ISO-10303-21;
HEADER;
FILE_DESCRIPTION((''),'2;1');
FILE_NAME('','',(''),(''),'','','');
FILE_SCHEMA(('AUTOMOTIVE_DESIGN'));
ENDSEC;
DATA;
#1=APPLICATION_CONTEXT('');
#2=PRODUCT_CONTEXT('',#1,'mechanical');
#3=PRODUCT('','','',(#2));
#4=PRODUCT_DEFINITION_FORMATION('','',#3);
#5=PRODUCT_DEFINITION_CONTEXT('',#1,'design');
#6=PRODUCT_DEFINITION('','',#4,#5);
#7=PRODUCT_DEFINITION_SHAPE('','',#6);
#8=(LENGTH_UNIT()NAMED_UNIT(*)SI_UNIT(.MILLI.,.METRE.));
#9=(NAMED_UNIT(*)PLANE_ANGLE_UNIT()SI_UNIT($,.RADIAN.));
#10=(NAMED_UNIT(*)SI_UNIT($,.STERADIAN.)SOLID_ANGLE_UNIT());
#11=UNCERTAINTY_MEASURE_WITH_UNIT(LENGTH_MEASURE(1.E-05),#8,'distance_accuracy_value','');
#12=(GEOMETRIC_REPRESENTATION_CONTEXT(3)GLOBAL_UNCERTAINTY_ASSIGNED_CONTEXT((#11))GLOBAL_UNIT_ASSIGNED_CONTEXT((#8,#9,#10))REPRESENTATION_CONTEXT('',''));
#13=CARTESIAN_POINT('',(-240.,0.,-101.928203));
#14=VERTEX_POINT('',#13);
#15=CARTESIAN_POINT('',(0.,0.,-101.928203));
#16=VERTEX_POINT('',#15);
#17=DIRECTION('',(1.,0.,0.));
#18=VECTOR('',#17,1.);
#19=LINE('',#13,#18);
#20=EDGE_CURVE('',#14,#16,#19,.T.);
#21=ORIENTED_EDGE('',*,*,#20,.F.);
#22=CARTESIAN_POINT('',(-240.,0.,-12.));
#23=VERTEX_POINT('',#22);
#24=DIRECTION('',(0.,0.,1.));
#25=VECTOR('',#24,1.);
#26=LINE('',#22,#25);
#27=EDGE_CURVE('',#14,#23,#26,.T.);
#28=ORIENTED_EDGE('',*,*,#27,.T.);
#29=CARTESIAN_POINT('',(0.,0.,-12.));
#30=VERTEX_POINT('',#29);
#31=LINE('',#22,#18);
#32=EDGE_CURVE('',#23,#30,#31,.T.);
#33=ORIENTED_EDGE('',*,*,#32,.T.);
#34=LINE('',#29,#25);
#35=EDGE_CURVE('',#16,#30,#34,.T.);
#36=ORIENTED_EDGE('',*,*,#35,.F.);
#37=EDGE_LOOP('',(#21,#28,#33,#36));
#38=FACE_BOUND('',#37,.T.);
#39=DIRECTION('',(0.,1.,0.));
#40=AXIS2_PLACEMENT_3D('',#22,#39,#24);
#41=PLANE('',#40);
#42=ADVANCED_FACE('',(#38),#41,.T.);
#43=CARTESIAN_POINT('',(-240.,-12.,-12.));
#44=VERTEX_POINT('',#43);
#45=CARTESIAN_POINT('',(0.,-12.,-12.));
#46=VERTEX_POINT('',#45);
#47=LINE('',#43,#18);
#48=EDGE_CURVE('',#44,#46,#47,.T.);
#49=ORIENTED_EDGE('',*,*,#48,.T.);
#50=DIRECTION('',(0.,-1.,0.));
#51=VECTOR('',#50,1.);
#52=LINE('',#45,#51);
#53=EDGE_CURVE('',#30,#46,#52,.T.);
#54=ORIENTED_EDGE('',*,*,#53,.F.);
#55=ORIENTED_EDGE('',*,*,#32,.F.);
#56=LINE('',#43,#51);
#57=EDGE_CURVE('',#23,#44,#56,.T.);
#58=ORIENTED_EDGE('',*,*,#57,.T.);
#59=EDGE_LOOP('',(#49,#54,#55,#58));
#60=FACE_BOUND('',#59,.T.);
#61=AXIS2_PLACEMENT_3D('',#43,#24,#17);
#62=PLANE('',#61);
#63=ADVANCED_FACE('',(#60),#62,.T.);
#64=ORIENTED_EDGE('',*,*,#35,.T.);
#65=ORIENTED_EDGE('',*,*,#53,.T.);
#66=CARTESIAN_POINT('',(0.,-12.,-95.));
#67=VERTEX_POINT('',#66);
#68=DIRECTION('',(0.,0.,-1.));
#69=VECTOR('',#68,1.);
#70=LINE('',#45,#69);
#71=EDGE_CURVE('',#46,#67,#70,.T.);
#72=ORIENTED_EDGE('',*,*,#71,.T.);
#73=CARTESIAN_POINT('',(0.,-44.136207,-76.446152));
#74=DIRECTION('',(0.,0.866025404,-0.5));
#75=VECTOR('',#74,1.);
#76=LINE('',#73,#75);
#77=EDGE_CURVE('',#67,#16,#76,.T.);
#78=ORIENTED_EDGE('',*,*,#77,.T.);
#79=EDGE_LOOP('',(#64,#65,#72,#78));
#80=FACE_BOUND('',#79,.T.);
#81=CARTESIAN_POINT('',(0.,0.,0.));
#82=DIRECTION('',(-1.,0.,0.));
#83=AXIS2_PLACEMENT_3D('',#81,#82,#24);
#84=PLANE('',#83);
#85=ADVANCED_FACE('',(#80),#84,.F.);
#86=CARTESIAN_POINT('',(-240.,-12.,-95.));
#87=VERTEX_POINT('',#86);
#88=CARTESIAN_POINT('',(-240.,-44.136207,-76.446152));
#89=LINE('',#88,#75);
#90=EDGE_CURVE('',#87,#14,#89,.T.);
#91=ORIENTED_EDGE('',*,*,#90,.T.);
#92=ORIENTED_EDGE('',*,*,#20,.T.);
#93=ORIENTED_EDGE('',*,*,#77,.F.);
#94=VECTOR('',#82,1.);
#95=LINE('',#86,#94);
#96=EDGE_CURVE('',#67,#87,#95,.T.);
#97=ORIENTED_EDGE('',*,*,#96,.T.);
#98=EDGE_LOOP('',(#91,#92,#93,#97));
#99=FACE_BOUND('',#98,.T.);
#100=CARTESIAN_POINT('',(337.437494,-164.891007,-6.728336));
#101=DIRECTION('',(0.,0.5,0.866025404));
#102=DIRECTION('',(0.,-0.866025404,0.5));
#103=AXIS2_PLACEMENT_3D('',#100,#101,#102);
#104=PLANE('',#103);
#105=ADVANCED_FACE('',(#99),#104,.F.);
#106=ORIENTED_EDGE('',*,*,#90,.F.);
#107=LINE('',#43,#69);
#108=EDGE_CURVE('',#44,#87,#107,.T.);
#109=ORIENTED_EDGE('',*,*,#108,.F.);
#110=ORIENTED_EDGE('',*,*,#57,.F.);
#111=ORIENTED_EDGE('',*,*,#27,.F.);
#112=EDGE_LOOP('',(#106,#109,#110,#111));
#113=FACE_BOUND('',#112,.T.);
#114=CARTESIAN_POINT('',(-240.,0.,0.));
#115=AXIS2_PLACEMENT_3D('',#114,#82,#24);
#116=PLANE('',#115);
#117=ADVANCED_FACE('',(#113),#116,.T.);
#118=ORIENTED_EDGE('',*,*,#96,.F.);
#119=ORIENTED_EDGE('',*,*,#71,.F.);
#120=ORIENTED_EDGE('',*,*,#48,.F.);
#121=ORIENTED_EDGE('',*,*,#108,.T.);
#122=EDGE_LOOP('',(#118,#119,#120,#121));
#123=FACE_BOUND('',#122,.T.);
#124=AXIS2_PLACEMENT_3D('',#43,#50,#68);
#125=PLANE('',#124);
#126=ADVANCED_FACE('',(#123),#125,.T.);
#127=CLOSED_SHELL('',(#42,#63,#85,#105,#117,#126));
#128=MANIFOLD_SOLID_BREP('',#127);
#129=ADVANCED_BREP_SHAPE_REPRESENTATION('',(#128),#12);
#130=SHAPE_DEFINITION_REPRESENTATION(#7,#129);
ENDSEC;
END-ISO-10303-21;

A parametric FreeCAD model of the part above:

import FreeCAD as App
import Part
import Sketcher
from FreeCAD import Vector
Q = App.Units.Quantity


def add_polygon(sketch, points):
    """Adds a closed chain of lines whose ends are joined by coincident constraints."""
    first, n = sketch.GeometryCount, len(points)
    for a, b in zip(points, points[1:] + points[:1]):
        sketch.addGeometry(Part.LineSegment(App.Vector(*a, 0), App.Vector(*b, 0)), False)
    for i in range(n):
        sketch.addConstraint(Sketcher.Constraint("Coincident", first + i, 2, first + (i + 1) % n, 1))

doc = App.newDocument("Part")
body = doc.addObject("PartDesign::Body", "Body")

sketch1 = body.newObject("Sketcher::SketchObject", "Sketch")
sketch1.AttachmentSupport = (doc.getObject("YZ_Plane"), [""])
sketch1.MapMode = "FlatFace"
add_polygon(sketch1, [(0, -12), (-12, -12), (-12, -135), (0, -135)])
sketch1.addConstraint([
    Sketcher.Constraint("Horizontal", 0),
    Sketcher.Constraint("Vertical", 1),
    Sketcher.Constraint("Horizontal", 2),
    Sketcher.Constraint("Vertical", 3),
    Sketcher.Constraint("PointOnObject", 2, 2, -2),
    Sketcher.Constraint("DistanceX", 0, 2, 0, 1, Q("12 mm")),
    Sketcher.Constraint("DistanceY", 1, 2, 1, 1, Q("123 mm")),
    Sketcher.Constraint("DistanceY", 0, 2, -1, 1, Q("12 mm")),
])
pad1 = body.newObject("PartDesign::Pad", "Pad")
pad1.Profile = sketch1
pad1.Length = 240
pad1.Reversed = True

sketch2 = body.newObject("Sketcher::SketchObject", "Sketch001")
sketch2.AttachmentSupport = (doc.getObject("YZ_Plane"), [""])
sketch2.MapMode = "FlatFace"
add_polygon(sketch2, [(-164.891007, -6.728336), (-535.390993, 207.179931), (-963.207526, -533.820041), (-48.506552, -1061.922895), (379.309982, -320.922923)])
sketch2.addConstraint([
    Sketcher.Constraint("Perpendicular", 0, 1),
    Sketcher.Constraint("Perpendicular", 1, 2),
    Sketcher.Constraint("Perpendicular", 2, 3),
    Sketcher.Constraint("Perpendicular", 3, 4),
    Sketcher.Constraint("Angle", 0, Q("150 deg")),
    Sketcher.Constraint("DistanceY", -1, 1, 0, 2, Q("207.179931 mm")),
    Sketcher.Constraint("DistanceY", 1, 2, -1, 1, Q("533.820041 mm")),
    Sketcher.Constraint("DistanceX", 2, 2, -1, 1, Q("48.506552 mm")),
    Sketcher.Constraint("DistanceX", 0, 2, 2, 2, Q("486.884441 mm")),
    Sketcher.Constraint("DistanceX", 4, 2, 3, 2, Q("544.200989 mm")),
])
pocket1 = body.newObject("PartDesign::Pocket", "Pocket")
pocket1.Profile = sketch2
pocket1.Type = "ThroughAll"
pocket1.Midplane = True

doc.recompute()
